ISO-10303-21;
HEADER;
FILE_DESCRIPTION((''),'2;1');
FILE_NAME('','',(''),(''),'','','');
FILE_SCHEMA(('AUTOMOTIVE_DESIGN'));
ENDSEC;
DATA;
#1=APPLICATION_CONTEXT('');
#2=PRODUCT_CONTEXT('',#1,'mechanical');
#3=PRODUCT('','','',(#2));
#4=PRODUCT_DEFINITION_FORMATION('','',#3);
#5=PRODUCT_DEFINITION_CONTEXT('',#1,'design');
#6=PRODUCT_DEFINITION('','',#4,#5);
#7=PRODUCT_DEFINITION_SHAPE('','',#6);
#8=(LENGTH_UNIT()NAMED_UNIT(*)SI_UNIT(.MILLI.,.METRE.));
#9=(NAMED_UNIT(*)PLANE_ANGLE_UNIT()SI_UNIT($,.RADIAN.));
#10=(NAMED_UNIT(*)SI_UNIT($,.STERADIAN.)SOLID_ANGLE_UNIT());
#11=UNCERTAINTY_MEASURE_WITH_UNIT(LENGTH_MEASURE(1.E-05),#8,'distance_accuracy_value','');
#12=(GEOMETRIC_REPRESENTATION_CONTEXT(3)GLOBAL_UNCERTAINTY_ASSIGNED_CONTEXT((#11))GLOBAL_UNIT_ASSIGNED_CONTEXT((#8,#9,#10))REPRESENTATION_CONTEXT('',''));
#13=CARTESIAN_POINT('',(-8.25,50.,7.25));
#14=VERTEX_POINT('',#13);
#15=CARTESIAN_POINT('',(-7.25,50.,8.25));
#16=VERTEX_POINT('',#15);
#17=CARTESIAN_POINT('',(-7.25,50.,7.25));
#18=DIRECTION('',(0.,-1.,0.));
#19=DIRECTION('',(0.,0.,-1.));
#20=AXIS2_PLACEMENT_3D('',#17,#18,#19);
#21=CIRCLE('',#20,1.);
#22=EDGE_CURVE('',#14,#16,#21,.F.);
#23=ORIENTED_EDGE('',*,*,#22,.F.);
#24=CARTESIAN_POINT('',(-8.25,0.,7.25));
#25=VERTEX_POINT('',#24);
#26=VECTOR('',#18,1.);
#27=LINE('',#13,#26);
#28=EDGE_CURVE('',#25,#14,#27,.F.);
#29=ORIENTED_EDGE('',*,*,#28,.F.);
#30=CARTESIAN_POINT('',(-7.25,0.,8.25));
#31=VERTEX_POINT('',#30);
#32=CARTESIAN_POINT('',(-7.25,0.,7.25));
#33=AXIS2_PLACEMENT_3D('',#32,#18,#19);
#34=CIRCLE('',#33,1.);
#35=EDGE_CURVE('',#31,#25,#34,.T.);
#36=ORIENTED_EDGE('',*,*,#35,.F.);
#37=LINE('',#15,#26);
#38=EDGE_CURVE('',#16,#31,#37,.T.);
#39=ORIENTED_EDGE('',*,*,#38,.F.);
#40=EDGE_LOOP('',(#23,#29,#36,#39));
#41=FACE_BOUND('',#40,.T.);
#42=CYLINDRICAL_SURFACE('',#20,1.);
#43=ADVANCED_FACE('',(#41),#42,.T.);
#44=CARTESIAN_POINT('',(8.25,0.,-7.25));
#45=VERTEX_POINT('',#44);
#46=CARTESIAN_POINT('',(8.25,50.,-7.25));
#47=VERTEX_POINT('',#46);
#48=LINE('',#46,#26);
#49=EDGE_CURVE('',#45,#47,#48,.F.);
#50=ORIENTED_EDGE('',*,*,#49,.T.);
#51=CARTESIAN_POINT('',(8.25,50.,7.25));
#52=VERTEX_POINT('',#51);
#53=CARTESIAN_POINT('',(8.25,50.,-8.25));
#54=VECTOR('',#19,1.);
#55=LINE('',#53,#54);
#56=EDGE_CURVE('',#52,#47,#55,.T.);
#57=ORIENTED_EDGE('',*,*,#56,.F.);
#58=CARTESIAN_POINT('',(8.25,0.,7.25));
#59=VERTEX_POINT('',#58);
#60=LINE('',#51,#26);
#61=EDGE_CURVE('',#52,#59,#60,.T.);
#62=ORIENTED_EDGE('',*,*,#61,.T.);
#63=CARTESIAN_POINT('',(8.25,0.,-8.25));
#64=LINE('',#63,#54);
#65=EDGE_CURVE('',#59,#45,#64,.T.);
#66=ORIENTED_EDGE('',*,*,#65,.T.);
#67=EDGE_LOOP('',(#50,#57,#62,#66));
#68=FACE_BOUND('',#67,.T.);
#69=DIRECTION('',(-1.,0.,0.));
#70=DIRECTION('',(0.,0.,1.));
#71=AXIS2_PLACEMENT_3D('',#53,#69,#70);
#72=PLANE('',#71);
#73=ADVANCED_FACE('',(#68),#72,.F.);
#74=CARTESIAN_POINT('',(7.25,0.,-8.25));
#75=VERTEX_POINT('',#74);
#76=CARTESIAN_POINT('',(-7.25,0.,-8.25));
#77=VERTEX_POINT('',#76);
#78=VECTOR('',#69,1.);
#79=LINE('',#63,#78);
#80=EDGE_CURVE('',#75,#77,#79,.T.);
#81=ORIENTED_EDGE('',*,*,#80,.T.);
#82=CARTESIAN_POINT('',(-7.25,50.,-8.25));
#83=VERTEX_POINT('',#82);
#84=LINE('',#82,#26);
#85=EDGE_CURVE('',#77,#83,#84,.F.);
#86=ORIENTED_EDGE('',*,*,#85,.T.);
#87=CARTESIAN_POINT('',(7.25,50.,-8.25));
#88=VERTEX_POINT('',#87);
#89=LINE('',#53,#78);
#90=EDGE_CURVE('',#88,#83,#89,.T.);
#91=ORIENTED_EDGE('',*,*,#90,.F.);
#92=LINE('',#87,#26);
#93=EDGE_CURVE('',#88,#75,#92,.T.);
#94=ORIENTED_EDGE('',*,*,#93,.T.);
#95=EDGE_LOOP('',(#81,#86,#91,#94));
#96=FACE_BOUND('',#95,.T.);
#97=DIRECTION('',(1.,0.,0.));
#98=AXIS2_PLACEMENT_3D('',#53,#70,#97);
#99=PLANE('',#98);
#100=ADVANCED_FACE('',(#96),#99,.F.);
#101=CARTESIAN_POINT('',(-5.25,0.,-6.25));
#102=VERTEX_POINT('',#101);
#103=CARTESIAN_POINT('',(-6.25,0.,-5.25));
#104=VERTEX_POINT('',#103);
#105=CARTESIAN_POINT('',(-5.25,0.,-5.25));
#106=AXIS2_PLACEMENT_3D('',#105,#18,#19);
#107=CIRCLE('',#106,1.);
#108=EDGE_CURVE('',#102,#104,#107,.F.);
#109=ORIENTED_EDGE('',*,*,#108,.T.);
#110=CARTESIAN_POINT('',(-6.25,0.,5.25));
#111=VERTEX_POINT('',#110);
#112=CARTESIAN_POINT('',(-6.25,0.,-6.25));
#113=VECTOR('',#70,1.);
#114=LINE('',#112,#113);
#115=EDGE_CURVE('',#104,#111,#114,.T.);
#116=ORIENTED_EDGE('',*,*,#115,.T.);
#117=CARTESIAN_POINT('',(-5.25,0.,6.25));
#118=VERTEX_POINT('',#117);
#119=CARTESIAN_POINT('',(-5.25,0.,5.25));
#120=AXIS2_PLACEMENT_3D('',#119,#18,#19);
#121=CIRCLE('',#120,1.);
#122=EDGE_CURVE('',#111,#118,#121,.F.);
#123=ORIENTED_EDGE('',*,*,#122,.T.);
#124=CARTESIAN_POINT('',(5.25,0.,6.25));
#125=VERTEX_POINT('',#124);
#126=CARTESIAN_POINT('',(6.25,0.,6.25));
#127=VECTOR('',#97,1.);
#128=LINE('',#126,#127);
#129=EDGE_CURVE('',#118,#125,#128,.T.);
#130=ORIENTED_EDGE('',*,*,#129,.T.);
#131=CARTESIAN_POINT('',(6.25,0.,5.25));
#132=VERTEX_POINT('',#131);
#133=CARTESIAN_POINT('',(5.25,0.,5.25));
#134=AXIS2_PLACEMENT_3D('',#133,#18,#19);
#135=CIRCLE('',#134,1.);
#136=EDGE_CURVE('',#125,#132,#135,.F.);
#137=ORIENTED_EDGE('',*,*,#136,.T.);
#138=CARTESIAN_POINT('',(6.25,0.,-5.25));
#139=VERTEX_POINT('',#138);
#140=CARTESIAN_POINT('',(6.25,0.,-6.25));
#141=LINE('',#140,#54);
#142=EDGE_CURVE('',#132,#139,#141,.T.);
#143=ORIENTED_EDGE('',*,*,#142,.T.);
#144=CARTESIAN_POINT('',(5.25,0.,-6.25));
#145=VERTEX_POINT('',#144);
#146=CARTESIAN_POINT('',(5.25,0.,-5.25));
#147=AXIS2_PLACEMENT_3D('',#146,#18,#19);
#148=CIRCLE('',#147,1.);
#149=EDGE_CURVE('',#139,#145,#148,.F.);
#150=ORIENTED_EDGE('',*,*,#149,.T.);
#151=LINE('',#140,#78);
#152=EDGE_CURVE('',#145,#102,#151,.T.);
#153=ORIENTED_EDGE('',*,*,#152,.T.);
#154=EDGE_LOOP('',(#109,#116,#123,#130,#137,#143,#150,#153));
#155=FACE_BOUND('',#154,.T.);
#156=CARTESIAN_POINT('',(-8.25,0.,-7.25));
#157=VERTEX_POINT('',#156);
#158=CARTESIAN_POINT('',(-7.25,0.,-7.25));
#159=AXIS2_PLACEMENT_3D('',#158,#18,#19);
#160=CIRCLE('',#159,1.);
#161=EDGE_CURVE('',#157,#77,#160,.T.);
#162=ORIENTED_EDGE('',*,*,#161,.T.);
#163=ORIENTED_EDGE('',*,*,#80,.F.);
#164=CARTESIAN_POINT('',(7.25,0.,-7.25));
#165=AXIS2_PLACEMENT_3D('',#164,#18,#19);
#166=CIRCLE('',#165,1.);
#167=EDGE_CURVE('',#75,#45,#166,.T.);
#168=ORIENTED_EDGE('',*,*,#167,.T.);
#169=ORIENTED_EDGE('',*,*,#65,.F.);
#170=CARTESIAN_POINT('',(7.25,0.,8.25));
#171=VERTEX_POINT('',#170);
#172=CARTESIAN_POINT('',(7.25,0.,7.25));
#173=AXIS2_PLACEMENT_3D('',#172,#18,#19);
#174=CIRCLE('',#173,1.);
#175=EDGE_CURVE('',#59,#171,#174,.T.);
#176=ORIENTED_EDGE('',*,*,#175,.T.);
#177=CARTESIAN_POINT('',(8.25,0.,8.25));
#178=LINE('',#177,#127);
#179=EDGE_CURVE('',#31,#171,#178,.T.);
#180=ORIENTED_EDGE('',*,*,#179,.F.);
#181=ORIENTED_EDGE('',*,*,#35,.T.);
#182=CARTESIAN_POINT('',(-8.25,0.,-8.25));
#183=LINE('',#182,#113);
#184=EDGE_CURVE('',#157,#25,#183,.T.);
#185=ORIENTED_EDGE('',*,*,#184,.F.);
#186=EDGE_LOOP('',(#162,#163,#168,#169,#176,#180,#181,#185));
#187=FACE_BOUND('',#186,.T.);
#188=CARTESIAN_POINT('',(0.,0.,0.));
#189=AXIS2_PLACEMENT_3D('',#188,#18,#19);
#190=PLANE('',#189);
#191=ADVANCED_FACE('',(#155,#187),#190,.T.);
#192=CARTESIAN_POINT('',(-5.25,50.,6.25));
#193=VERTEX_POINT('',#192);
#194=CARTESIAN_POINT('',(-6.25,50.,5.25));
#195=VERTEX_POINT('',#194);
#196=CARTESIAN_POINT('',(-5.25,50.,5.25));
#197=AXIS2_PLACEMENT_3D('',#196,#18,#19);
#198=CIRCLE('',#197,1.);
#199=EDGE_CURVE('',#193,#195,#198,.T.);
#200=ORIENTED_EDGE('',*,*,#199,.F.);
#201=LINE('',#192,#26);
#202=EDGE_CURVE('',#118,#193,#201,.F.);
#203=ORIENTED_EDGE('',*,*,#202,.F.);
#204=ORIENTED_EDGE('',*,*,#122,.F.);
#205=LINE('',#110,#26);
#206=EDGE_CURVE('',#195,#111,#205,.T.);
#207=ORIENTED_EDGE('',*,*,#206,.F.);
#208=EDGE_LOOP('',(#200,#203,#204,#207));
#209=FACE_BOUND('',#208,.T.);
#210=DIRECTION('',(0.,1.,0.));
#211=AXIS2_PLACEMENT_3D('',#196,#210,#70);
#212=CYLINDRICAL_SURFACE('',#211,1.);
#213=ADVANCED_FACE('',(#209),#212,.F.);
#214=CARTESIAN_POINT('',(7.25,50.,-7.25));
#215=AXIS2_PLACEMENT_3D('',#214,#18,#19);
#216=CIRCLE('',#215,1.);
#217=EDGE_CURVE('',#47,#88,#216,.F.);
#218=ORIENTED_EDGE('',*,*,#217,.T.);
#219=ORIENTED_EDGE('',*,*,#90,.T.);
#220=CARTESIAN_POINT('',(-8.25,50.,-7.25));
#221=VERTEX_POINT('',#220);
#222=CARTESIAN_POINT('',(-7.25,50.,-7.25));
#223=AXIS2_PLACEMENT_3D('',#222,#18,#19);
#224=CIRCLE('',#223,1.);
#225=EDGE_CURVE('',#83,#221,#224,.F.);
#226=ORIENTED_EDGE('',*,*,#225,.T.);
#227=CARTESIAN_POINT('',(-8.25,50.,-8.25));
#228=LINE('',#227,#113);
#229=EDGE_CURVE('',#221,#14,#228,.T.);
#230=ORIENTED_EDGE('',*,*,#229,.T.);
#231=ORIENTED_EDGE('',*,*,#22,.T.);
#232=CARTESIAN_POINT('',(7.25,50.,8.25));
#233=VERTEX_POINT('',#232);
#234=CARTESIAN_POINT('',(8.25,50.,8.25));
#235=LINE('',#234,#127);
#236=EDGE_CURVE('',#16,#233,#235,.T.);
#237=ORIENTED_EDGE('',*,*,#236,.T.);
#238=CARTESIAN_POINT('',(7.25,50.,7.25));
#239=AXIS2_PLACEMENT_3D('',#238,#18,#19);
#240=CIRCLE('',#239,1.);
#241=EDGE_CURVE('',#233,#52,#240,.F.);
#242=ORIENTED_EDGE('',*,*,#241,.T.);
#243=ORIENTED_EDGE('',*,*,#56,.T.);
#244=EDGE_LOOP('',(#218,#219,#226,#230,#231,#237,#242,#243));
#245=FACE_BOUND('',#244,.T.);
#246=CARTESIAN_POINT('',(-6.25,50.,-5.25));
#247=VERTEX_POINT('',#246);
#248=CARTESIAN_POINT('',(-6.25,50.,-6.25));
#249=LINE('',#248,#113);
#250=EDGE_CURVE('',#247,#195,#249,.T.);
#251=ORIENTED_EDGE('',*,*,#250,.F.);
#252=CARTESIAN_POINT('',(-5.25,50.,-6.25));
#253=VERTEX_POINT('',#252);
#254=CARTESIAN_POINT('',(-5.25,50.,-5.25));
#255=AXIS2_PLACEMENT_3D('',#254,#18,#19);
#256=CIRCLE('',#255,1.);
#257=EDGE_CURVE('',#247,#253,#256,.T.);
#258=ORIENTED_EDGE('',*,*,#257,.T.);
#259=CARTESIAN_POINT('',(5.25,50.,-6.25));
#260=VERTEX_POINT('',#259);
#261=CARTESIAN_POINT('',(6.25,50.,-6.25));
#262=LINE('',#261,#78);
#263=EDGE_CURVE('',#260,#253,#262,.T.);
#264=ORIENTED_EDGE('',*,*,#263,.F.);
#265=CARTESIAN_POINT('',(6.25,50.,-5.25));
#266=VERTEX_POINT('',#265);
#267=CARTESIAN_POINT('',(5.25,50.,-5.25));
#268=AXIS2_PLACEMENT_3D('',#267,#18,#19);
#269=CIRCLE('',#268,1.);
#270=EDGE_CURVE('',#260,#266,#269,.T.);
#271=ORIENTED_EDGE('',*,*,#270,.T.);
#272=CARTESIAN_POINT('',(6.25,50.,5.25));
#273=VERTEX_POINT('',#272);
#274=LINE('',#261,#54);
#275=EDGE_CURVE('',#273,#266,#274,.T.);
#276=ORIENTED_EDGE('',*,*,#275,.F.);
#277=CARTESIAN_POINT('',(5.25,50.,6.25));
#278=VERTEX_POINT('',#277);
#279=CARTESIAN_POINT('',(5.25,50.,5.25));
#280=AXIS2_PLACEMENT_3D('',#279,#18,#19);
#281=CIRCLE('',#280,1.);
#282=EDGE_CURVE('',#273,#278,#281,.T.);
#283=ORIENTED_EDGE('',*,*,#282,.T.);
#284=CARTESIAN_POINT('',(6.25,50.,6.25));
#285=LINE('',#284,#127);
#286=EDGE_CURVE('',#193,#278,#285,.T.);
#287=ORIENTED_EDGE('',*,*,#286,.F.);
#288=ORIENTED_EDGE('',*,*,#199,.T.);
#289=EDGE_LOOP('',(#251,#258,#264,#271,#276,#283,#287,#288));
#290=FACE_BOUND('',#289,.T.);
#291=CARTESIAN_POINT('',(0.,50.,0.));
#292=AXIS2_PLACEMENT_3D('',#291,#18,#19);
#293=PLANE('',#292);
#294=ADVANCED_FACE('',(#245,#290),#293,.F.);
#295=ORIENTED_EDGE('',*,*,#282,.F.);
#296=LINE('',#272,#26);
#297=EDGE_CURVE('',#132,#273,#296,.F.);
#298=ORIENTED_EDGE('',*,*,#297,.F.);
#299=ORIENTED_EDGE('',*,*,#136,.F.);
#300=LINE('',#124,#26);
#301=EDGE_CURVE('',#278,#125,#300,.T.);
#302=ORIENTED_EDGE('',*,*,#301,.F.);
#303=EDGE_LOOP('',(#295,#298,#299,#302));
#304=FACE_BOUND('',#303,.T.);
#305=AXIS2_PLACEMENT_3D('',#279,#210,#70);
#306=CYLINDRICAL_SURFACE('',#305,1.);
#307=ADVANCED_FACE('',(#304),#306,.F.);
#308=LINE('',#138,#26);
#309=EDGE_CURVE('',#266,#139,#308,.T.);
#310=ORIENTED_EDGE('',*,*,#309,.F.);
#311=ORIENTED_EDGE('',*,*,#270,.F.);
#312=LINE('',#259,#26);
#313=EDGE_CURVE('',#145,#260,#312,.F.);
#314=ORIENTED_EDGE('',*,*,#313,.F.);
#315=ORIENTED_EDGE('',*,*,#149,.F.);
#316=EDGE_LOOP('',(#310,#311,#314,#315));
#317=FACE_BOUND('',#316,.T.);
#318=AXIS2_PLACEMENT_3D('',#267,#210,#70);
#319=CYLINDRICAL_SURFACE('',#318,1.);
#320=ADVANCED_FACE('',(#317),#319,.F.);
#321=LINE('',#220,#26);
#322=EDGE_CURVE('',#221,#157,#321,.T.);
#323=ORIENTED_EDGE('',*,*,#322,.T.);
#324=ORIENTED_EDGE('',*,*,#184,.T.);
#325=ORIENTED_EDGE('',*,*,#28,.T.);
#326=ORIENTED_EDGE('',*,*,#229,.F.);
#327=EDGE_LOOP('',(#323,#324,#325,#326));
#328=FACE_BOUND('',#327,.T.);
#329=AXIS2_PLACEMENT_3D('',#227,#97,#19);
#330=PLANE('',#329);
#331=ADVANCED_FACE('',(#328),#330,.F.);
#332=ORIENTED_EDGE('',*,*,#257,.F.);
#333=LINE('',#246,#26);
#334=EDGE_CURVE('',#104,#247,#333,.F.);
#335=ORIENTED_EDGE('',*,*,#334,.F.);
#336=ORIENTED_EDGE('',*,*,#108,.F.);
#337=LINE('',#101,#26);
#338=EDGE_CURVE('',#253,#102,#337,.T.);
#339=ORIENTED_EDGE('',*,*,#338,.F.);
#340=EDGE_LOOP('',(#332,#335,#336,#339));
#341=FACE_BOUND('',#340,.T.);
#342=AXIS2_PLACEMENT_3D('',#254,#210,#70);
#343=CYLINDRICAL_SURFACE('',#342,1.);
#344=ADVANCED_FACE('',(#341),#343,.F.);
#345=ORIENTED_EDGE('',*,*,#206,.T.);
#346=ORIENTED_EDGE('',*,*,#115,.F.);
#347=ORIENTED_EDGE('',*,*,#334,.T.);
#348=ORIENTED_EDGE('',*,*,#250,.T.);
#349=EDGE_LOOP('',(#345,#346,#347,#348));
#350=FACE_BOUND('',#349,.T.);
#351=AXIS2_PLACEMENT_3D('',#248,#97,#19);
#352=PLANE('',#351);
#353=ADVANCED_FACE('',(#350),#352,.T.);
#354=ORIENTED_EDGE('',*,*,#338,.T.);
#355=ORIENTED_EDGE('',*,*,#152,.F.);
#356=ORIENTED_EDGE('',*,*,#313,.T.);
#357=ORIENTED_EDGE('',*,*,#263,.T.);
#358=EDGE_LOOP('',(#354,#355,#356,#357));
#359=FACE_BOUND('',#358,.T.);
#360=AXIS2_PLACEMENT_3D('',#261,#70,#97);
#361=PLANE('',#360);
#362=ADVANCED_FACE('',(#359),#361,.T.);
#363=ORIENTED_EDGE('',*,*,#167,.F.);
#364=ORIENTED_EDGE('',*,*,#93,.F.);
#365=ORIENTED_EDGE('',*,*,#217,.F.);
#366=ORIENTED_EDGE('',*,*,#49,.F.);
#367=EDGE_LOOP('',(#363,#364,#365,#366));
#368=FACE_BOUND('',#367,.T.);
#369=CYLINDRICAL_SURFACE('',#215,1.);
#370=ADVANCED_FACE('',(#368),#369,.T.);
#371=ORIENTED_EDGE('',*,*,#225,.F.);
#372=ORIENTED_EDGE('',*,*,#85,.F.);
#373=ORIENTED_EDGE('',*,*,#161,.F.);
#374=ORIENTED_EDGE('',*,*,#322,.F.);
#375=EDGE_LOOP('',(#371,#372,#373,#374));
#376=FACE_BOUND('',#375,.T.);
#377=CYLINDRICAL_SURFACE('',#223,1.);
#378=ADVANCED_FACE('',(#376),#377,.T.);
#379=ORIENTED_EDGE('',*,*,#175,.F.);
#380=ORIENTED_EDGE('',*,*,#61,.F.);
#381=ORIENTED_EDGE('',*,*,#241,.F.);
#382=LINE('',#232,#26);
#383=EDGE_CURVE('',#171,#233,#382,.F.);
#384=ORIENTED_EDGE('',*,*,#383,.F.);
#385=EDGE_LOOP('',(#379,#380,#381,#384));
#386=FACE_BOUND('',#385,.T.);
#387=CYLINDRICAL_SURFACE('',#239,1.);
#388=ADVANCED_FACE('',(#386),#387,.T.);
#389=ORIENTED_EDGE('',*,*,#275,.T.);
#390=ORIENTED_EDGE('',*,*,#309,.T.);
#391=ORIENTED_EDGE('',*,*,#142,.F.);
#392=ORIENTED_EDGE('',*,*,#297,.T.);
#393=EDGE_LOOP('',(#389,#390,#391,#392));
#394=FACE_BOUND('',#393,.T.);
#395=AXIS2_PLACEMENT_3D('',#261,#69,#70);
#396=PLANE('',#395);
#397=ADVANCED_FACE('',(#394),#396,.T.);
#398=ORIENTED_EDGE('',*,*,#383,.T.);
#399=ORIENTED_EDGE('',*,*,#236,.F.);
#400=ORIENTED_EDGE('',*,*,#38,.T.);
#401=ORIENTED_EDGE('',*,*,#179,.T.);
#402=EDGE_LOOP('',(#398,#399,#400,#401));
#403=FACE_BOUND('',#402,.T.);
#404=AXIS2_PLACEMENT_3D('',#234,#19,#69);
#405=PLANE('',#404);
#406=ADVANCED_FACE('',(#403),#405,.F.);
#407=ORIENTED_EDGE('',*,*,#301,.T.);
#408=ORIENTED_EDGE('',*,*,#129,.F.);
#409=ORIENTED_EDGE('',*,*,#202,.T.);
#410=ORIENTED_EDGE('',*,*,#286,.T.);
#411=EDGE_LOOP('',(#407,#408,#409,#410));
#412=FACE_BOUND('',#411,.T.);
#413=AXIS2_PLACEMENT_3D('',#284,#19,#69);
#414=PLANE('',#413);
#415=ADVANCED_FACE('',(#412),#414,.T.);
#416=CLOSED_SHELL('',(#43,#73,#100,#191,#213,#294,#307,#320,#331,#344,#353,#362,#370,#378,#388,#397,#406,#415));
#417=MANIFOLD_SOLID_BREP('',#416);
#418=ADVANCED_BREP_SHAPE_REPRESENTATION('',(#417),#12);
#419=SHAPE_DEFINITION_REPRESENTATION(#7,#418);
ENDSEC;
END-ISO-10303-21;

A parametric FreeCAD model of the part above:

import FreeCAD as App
import Part
import Sketcher

V = App.Vector


def edges_at(feature, points):
    """Names of the edges that pass closest to the given points."""
    edges = feature.Shape.Edges
    near = lambda p: min(range(len(edges)), key=lambda i: edges[i].distToShape(Part.Vertex(*p))[0])
    return sorted({f"Edge{near(p) + 1}" for p in points})


def add_polygon(sketch, points):
    """Adds a closed chain of lines whose ends are joined by coincident constraints."""
    first, n = sketch.GeometryCount, len(points)
    for a, b in zip(points, points[1:] + points[:1]):
        sketch.addGeometry(Part.LineSegment(App.Vector(*a, 0), App.Vector(*b, 0)), False)
    for i in range(n):
        sketch.addConstraint(Sketcher.Constraint("Coincident", first + i, 2, first + (i + 1) % n, 1))

doc = App.newDocument("Part")
params = doc.addObject("Spreadsheet::Sheet", "Params")
for row, (alias, value) in enumerate([
    ("sketch1_width", "16.5 mm"),
    ("sketch1_width2", "12.5 mm"),
    ("pad1_length", "50 mm"),
    ("fillet_radius", "1 mm"),
], start=1):
    params.set(f"A{row}", alias)
    params.set(f"B{row}", "=" + value)
    params.setAlias(f"B{row}", alias)

body = doc.addObject("PartDesign::Body", "Body")

# Sketch on XZ plane
sketch1 = body.newObject("Sketcher::SketchObject", "Sketch")
sketch1.AttachmentSupport = (doc.getObject("XZ_Plane"), [""])
sketch1.MapMode = "FlatFace"
add_polygon(sketch1, [(-8.25, -8.25), (-8.25, 8.25), (8.25, 8.25), (8.25, -8.25)])  # lines 0-3
add_polygon(sketch1, [(6.25, 6.25), (-6.25, 6.25), (-6.25, -6.25), (6.25, -6.25)])  # lines 4-7
sketch1.addConstraint([
    Sketcher.Constraint("Vertical", 0),
    Sketcher.Constraint("Horizontal", 1),
    Sketcher.Constraint("Vertical", 2),
    Sketcher.Constraint("Horizontal", 3),
    Sketcher.Constraint("Horizontal", 4),
    Sketcher.Constraint("Vertical", 5),
    Sketcher.Constraint("Horizontal", 6),
    Sketcher.Constraint("Vertical", 7),
    Sketcher.Constraint("Symmetric", 0, 2, 2, 2, -1, 1),
    Sketcher.Constraint("Symmetric", 4, 2, 6, 2, -1, 1),
    Sketcher.Constraint("Equal", 3, 0),
    Sketcher.Constraint("Equal", 6, 5),
    Sketcher.Constraint("DistanceX", 1, 1, 1, 2, 16.5),
    Sketcher.Constraint("DistanceX", 4, 2, 4, 1, 12.5),
])
sketch1.setExpression("Constraints[20]", "Params.sketch1_width")
sketch1.setExpression("Constraints[21]", "Params.sketch1_width2")
pad1 = body.newObject("PartDesign::Pad", "Pad")
pad1.Profile = sketch1
pad1.setExpression("Length", "Params.pad1_length")
pad1.Reversed = True
doc.recompute()

fillet = body.newObject("PartDesign::Fillet", "Fillet")
fillet.Base = (pad1, edges_at(pad1, [
    (-6.25, 25, -6.25),
    (-6.25, 25, 6.25),
    (6.25, 25, 6.25),
    (6.25, 25, -6.25),
    (-8.25, 25, -8.25),
    (8.25, 25, -8.25),
    (8.25, 25, 8.25),
    (-8.25, 25, 8.25),
]))
fillet.setExpression("Radius", "Params.fillet_radius")

doc.recompute()
